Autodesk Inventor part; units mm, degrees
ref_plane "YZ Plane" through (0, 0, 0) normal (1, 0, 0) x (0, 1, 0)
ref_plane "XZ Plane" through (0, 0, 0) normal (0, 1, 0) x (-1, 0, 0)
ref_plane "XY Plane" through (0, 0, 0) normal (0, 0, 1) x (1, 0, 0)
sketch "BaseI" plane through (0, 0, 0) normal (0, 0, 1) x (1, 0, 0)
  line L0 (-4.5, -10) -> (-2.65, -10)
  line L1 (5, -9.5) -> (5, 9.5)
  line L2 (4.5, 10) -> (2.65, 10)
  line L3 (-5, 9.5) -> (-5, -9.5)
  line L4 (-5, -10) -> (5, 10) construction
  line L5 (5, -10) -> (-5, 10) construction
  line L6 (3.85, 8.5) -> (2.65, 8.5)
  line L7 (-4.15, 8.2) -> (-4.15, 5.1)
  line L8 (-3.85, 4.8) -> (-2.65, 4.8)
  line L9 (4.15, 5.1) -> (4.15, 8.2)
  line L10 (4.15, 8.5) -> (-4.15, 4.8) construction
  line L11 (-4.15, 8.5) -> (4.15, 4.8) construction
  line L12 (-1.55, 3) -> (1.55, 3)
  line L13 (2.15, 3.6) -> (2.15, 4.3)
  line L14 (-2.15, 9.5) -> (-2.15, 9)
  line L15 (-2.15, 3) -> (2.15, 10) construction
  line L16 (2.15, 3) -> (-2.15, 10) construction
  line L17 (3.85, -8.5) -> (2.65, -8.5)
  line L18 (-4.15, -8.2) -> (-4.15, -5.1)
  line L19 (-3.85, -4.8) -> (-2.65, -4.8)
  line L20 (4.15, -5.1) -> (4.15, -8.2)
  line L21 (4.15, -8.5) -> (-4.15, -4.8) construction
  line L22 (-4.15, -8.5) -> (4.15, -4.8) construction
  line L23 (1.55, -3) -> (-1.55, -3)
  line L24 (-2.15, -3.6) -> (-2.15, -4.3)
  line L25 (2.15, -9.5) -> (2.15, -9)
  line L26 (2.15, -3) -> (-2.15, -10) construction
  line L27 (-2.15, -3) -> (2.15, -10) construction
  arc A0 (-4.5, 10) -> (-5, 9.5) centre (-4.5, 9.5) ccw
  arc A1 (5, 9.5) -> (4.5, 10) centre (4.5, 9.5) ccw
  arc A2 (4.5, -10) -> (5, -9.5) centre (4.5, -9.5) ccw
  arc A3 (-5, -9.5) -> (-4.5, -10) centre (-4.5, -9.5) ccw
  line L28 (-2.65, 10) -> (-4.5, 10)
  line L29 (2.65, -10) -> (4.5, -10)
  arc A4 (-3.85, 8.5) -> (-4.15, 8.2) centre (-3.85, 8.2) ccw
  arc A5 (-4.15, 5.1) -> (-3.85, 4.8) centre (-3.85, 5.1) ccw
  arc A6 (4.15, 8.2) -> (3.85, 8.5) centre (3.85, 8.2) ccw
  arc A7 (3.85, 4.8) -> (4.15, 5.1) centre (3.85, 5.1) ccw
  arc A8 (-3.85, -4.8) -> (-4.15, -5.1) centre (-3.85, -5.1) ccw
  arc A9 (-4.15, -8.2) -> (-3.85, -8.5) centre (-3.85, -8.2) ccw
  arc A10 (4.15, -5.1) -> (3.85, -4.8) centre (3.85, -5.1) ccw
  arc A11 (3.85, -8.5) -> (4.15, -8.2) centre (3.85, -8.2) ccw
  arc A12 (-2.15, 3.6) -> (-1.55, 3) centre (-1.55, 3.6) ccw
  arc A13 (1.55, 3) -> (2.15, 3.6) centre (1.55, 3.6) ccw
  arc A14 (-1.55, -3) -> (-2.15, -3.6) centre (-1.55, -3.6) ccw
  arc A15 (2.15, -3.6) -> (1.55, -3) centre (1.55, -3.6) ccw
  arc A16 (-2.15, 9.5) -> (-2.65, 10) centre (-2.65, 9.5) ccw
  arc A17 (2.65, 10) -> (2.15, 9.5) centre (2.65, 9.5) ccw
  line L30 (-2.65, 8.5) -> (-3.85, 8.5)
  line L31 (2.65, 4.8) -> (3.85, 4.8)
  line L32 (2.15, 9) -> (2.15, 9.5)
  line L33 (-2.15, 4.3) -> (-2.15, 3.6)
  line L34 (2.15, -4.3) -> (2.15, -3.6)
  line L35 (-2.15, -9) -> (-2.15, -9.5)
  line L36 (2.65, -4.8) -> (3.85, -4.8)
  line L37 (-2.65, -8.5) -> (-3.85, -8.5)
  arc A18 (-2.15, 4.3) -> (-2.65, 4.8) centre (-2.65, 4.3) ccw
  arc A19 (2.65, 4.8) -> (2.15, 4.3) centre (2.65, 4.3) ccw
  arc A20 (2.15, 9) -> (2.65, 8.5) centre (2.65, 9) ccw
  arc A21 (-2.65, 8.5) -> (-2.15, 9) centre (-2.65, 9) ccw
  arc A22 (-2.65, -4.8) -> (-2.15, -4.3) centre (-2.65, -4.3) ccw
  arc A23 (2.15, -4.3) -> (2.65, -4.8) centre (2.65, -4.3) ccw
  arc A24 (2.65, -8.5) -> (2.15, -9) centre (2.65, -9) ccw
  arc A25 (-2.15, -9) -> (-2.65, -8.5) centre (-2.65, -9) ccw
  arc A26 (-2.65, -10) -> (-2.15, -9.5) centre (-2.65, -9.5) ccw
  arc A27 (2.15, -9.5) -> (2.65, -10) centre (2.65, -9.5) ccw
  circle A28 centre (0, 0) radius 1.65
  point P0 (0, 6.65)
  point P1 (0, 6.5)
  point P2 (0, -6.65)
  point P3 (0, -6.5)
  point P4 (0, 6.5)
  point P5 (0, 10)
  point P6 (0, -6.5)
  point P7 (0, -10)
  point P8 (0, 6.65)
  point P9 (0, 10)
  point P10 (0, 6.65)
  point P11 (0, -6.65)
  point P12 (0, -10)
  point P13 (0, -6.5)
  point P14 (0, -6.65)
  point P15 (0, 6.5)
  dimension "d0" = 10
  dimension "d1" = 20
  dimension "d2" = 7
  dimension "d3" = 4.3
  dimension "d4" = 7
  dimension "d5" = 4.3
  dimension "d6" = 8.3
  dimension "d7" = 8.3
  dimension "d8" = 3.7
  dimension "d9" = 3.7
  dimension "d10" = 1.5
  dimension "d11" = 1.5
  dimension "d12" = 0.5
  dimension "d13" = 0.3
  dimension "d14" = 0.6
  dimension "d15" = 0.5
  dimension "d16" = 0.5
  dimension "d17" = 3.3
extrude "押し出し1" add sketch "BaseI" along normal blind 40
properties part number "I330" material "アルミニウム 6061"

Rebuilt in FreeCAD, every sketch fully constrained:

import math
import FreeCAD as App
import Part
import Sketcher
from FreeCAD import Vector

doc = App.newDocument("Part")
params = doc.addObject("Spreadsheet::Sheet", "Params")
for row, (alias, value) in enumerate([
    ("sketch1_diameter", "3.3 mm"),
    ("sketch1_radius", "0.5 mm"),
    ("sketch1_radius2", "0.3 mm"),
    ("sketch1_radius3", "0.6 mm"),
    ("sketch1_height", "0.5 mm"),
    ("pad1_length", "40 mm"),
], start=1):
    params.set(f"A{row}", alias)
    params.set(f"B{row}", "=" + value)
    params.setAlias(f"B{row}", alias)

body = doc.addObject("PartDesign::Body", "Body")

sketch1 = body.newObject("Sketcher::SketchObject", "Sketch")
sketch1.AttachmentSupport = (doc.getObject("XY_Plane"), [""])
sketch1.MapMode = "FlatFace"
sketch1.addGeometry([
    Part.ArcOfCircle(Part.Circle(Vector(-4.5, -9.5, 0), Vector(0, 0, 1), 0.5), math.radians(180), math.radians(270)),
    Part.LineSegment(Vector(-4.5, -10, 0), Vector(-2.65, -10, 0)),
    Part.ArcOfCircle(Part.Circle(Vector(-2.65, -9.5, 0), Vector(0, 0, 1), 0.5), math.radians(-90), math.radians(0)),
    Part.LineSegment(Vector(-2.15, -9.5, 0), Vector(-2.15, -9, 0)),
    Part.ArcOfCircle(Part.Circle(Vector(-2.65, -9, 0), Vector(0, 0, 1), 0.5), math.radians(0), math.radians(90)),
    Part.LineSegment(Vector(-2.65, -8.5, 0), Vector(-3.85, -8.5, 0)),
    Part.ArcOfCircle(Part.Circle(Vector(-3.85, -8.2, 0), Vector(0, 0, 1), 0.3), math.radians(180), math.radians(270)),
    Part.LineSegment(Vector(-4.15, -8.2, 0), Vector(-4.15, -5.1, 0)),
    Part.ArcOfCircle(Part.Circle(Vector(-3.85, -5.1, 0), Vector(0, 0, 1), 0.3), math.radians(90), math.radians(180)),
    Part.LineSegment(Vector(-3.85, -4.8, 0), Vector(-2.65, -4.8, 0)),
    Part.ArcOfCircle(Part.Circle(Vector(-2.65, -4.3, 0), Vector(0, 0, 1), 0.5), math.radians(-90), math.radians(0)),
    Part.LineSegment(Vector(-2.15, -4.3, 0), Vector(-2.15, -3.6, 0)),
    Part.ArcOfCircle(Part.Circle(Vector(-1.55, -3.6, 0), Vector(0, 0, 1), 0.6), math.radians(90), math.radians(180)),
    Part.LineSegment(Vector(-1.55, -3, 0), Vector(1.55, -3, 0)),
    Part.ArcOfCircle(Part.Circle(Vector(1.55, -3.6, 0), Vector(0, 0, 1), 0.6), math.radians(0), math.radians(90)),
    Part.LineSegment(Vector(2.15, -3.6, 0), Vector(2.15, -4.3, 0)),
    Part.ArcOfCircle(Part.Circle(Vector(2.65, -4.3, 0), Vector(0, 0, 1), 0.5), math.radians(180), math.radians(270)),
    Part.LineSegment(Vector(2.65, -4.8, 0), Vector(3.85, -4.8, 0)),
    Part.ArcOfCircle(Part.Circle(Vector(3.85, -5.1, 0), Vector(0, 0, 1), 0.3), math.radians(0), math.radians(90)),
    Part.LineSegment(Vector(4.15, -5.1, 0), Vector(4.15, -8.2, 0)),
    Part.ArcOfCircle(Part.Circle(Vector(3.85, -8.2, 0), Vector(0, 0, 1), 0.3), math.radians(-90), math.radians(0)),
    Part.LineSegment(Vector(3.85, -8.5, 0), Vector(2.65, -8.5, 0)),
    Part.ArcOfCircle(Part.Circle(Vector(2.65, -9, 0), Vector(0, 0, 1), 0.5), math.radians(90), math.radians(180)),
    Part.LineSegment(Vector(2.15, -9, 0), Vector(2.15, -9.5, 0)),
    Part.ArcOfCircle(Part.Circle(Vector(2.65, -9.5, 0), Vector(0, 0, 1), 0.5), math.radians(180), math.radians(270)),
    Part.LineSegment(Vector(2.65, -10, 0), Vector(4.5, -10, 0)),
    Part.ArcOfCircle(Part.Circle(Vector(4.5, -9.5, 0), Vector(0, 0, 1), 0.5), math.radians(-90), math.radians(0)),
    Part.LineSegment(Vector(5, -9.5, 0), Vector(5, 9.5, 0)),
    Part.ArcOfCircle(Part.Circle(Vector(4.5, 9.5, 0), Vector(0, 0, 1), 0.5), math.radians(0), math.radians(90)),
    Part.LineSegment(Vector(4.5, 10, 0), Vector(2.65, 10, 0)),
    Part.ArcOfCircle(Part.Circle(Vector(2.65, 9.5, 0), Vector(0, 0, 1), 0.5), math.radians(90), math.radians(180)),
    Part.LineSegment(Vector(2.15, 9.5, 0), Vector(2.15, 9, 0)),
    Part.ArcOfCircle(Part.Circle(Vector(2.65, 9, 0), Vector(0, 0, 1), 0.5), math.radians(180), math.radians(270)),
    Part.LineSegment(Vector(2.65, 8.5, 0), Vector(3.85, 8.5, 0)),
    Part.ArcOfCircle(Part.Circle(Vector(3.85, 8.2, 0), Vector(0, 0, 1), 0.3), math.radians(0), math.radians(90)),
    Part.LineSegment(Vector(4.15, 8.2, 0), Vector(4.15, 5.1, 0)),
    Part.ArcOfCircle(Part.Circle(Vector(3.85, 5.1, 0), Vector(0, 0, 1), 0.3), math.radians(-90), math.radians(0)),
    Part.LineSegment(Vector(3.85, 4.8, 0), Vector(2.65, 4.8, 0)),
    Part.ArcOfCircle(Part.Circle(Vector(2.65, 4.3, 0), Vector(0, 0, 1), 0.5), math.radians(90), math.radians(180)),
    Part.LineSegment(Vector(2.15, 4.3, 0), Vector(2.15, 3.6, 0)),
    Part.ArcOfCircle(Part.Circle(Vector(1.55, 3.6, 0), Vector(0, 0, 1), 0.6), math.radians(-90), math.radians(0)),
    Part.LineSegment(Vector(1.55, 3, 0), Vector(-1.55, 3, 0)),
    Part.ArcOfCircle(Part.Circle(Vector(-1.55, 3.6, 0), Vector(0, 0, 1), 0.6), math.radians(180), math.radians(270)),
    Part.LineSegment(Vector(-2.15, 3.6, 0), Vector(-2.15, 4.3, 0)),
    Part.ArcOfCircle(Part.Circle(Vector(-2.65, 4.3, 0), Vector(0, 0, 1), 0.5), math.radians(0), math.radians(90)),
    Part.LineSegment(Vector(-2.65, 4.8, 0), Vector(-3.85, 4.8, 0)),
    Part.ArcOfCircle(Part.Circle(Vector(-3.85, 5.1, 0), Vector(0, 0, 1), 0.3), math.radians(180), math.radians(270)),
    Part.LineSegment(Vector(-4.15, 5.1, 0), Vector(-4.15, 8.2, 0)),
    Part.ArcOfCircle(Part.Circle(Vector(-3.85, 8.2, 0), Vector(0, 0, 1), 0.3), math.radians(90), math.radians(180)),
    Part.LineSegment(Vector(-3.85, 8.5, 0), Vector(-2.65, 8.5, 0)),
    Part.ArcOfCircle(Part.Circle(Vector(-2.65, 9, 0), Vector(0, 0, 1), 0.5), math.radians(-90), math.radians(0)),
    Part.LineSegment(Vector(-2.15, 9, 0), Vector(-2.15, 9.5, 0)),
    Part.ArcOfCircle(Part.Circle(Vector(-2.65, 9.5, 0), Vector(0, 0, 1), 0.5), math.radians(0), math.radians(90)),
    Part.LineSegment(Vector(-2.65, 10, 0), Vector(-4.5, 10, 0)),
    Part.ArcOfCircle(Part.Circle(Vector(-4.5, 9.5, 0), Vector(0, 0, 1), 0.5), math.radians(90), math.radians(180)),
    Part.LineSegment(Vector(-5, 9.5, 0), Vector(-5, -9.5, 0)),
    Part.Circle(Vector(0, 0, 0), Vector(0, 0, 1), 1.65),
], False)
sketch1.addConstraint([
    Sketcher.Constraint("Tangent", 0, 2, 1, 1),
    Sketcher.Constraint("Tangent", 1, 2, 2, 1),
    Sketcher.Constraint("Tangent", 2, 2, 3, 1),
    Sketcher.Constraint("Tangent", 3, 2, 4, 1),
    Sketcher.Constraint("Tangent", 4, 2, 5, 1),
    Sketcher.Constraint("Tangent", 5, 2, 6, 2),
    Sketcher.Constraint("Tangent", 6, 1, 7, 1),
    Sketcher.Constraint("Tangent", 7, 2, 8, 2),
    Sketcher.Constraint("Tangent", 8, 1, 9, 1),
    Sketcher.Constraint("Tangent", 9, 2, 10, 1),
    Sketcher.Constraint("Tangent", 10, 2, 11, 1),
    Sketcher.Constraint("Tangent", 11, 2, 12, 2),
    Sketcher.Constraint("Tangent", 12, 1, 13, 1),
    Sketcher.Constraint("Tangent", 13, 2, 14, 2),
    Sketcher.Constraint("Tangent", 14, 1, 15, 1),
    Sketcher.Constraint("Tangent", 15, 2, 16, 1),
    Sketcher.Constraint("Tangent", 16, 2, 17, 1),
    Sketcher.Constraint("Tangent", 17, 2, 18, 2),
    Sketcher.Constraint("Tangent", 18, 1, 19, 1),
    Sketcher.Constraint("Tangent", 19, 2, 20, 2),
    Sketcher.Constraint("Tangent", 20, 1, 21, 1),
    Sketcher.Constraint("Tangent", 21, 2, 22, 1),
    Sketcher.Constraint("Tangent", 22, 2, 23, 1),
    Sketcher.Constraint("Tangent", 23, 2, 24, 1),
    Sketcher.Constraint("Tangent", 24, 2, 25, 1),
    Sketcher.Constraint("Tangent", 25, 2, 26, 1),
    Sketcher.Constraint("Tangent", 26, 2, 27, 1),
    Sketcher.Constraint("Tangent", 27, 2, 28, 1),
    Sketcher.Constraint("Tangent", 28, 2, 29, 1),
    Sketcher.Constraint("Tangent", 29, 2, 30, 1),
    Sketcher.Constraint("Tangent", 30, 2, 31, 1),
    Sketcher.Constraint("Tangent", 31, 2, 32, 1),
    Sketcher.Constraint("Tangent", 32, 2, 33, 1),
    Sketcher.Constraint("Tangent", 33, 2, 34, 2),
    Sketcher.Constraint("Tangent", 34, 1, 35, 1),
    Sketcher.Constraint("Tangent", 35, 2, 36, 2),
    Sketcher.Constraint("Tangent", 36, 1, 37, 1),
    Sketcher.Constraint("Tangent", 37, 2, 38, 1),
    Sketcher.Constraint("Tangent", 38, 2, 39, 1),
    Sketcher.Constraint("Tangent", 39, 2, 40, 2),
    Sketcher.Constraint("Tangent", 40, 1, 41, 1),
    Sketcher.Constraint("Tangent", 41, 2, 42, 2),
    Sketcher.Constraint("Tangent", 42, 1, 43, 1),
    Sketcher.Constraint("Tangent", 43, 2, 44, 1),
    Sketcher.Constraint("Tangent", 44, 2, 45, 1),
    Sketcher.Constraint("Tangent", 45, 2, 46, 2),
    Sketcher.Constraint("Tangent", 46, 1, 47, 1),
    Sketcher.Constraint("Tangent", 47, 2, 48, 2),
    Sketcher.Constraint("Tangent", 48, 1, 49, 1),
    Sketcher.Constraint("Tangent", 49, 2, 50, 1),
    Sketcher.Constraint("Tangent", 50, 2, 51, 1),
    Sketcher.Constraint("Tangent", 51, 2, 52, 1),
    Sketcher.Constraint("Tangent", 52, 2, 53, 1),
    Sketcher.Constraint("Tangent", 53, 2, 54, 1),
    Sketcher.Constraint("Tangent", 54, 2, 55, 1),
    Sketcher.Constraint("Tangent", 55, 2, 0, 1),
    Sketcher.Constraint("Horizontal", 1),
    Sketcher.Constraint("Vertical", 3),
    Sketcher.Constraint("Horizontal", 5),
    Sketcher.Constraint("Vertical", 7),
    Sketcher.Constraint("Horizontal", 9),
    Sketcher.Constraint("Vertical", 11),
    Sketcher.Constraint("Horizontal", 13),
    Sketcher.Constraint("Vertical", 15),
    Sketcher.Constraint("Horizontal", 17),
    Sketcher.Constraint("Vertical", 19),
    Sketcher.Constraint("Horizontal", 21),
    Sketcher.Constraint("Vertical", 23),
    Sketcher.Constraint("Horizontal", 25),
    Sketcher.Constraint("Vertical", 27),
    Sketcher.Constraint("Horizontal", 29),
    Sketcher.Constraint("Vertical", 31),
    Sketcher.Constraint("Horizontal", 33),
    Sketcher.Constraint("Vertical", 35),
    Sketcher.Constraint("Horizontal", 37),
    Sketcher.Constraint("Vertical", 39),
    Sketcher.Constraint("Horizontal", 41),
    Sketcher.Constraint("Vertical", 43),
    Sketcher.Constraint("Horizontal", 45),
    Sketcher.Constraint("Vertical", 47),
    Sketcher.Constraint("Horizontal", 49),
    Sketcher.Constraint("Vertical", 51),
    Sketcher.Constraint("Horizontal", 53),
    Sketcher.Constraint("Vertical", 55),
    Sketcher.Constraint("Coincident", 56, 3, -1, 1),
    Sketcher.Constraint("Equal", 0, 2),
    Sketcher.Constraint("Equal", 2, 4),
    Sketcher.Constraint("Equal", 6, 8),
    Sketcher.Constraint("Equal", 4, 10),
    Sketcher.Constraint("Equal", 12, 14),
    Sketcher.Constraint("Equal", 10, 16),
    Sketcher.Constraint("Equal", 8, 18),
    Sketcher.Constraint("Equal", 18, 20),
    Sketcher.Constraint("Equal", 16, 22),
    Sketcher.Constraint("Equal", 22, 24),
    Sketcher.Constraint("Equal", 24, 26),
    Sketcher.Constraint("Equal", 26, 28),
    Sketcher.Constraint("Equal", 28, 30),
    Sketcher.Constraint("Equal", 30, 32),
    Sketcher.Constraint("Equal", 20, 34),
    Sketcher.Constraint("Equal", 34, 36),
    Sketcher.Constraint("Equal", 32, 38),
    Sketcher.Constraint("Equal", 14, 40),
    Sketcher.Constraint("Equal", 40, 42),
    Sketcher.Constraint("Equal", 38, 44),
    Sketcher.Constraint("Equal", 36, 46),
    Sketcher.Constraint("Equal", 46, 48),
    Sketcher.Constraint("Equal", 44, 50),
    Sketcher.Constraint("Equal", 50, 52),
    Sketcher.Constraint("Equal", 52, 54),
    Sketcher.Constraint("Symmetric", 0, 3, 28, 3, -1, 1),
    Sketcher.Constraint("Symmetric", 4, 3, 32, 3, -1, 1),
    Sketcher.Constraint("Symmetric", 8, 3, 36, 3, -1, 1),
    Sketcher.Constraint("Symmetric", 12, 3, 40, 3, -1, 1),
    Sketcher.Constraint("Symmetric", 16, 3, 44, 3, -1, 1),
    Sketcher.Constraint("Symmetric", 20, 3, 48, 3, -1, 1),
    Sketcher.Constraint("Symmetric", 24, 3, 52, 3, -1, 1),
    Sketcher.Constraint("Symmetric", 10, 3, 16, 3, -2),
    Sketcher.Constraint("Symmetric", 6, 3, 20, 3, -2),
    Sketcher.Constraint("Symmetric", 2, 3, 24, 3, -2),
    Sketcher.Constraint("Vertical", 4, 3, 10, 3),
    Sketcher.Constraint("Equal", 41, 7),
    Sketcher.Constraint("Diameter", 56, 3.3),
    Sketcher.Constraint("Radius", 0, 0.5),
    Sketcher.Constraint("Radius", 6, 0.3),
    Sketcher.Constraint("Radius", 12, 0.6),
    Sketcher.Constraint("DistanceY", 3, 1, 3, 2, 0.5),
    Sketcher.Constraint("DistanceY", 0, 2, -1, 1, 10.0),
    Sketcher.Constraint("DistanceY", 10, 3, -1, 1, 4.3),
    Sketcher.Constraint("DistanceX", 5, 2, 5, 1, 1.2),
    Sketcher.Constraint("DistanceY", 11, 1, 11, 2, 0.7),
    Sketcher.Constraint("DistanceX", -1, 1, 26, 2, 5.0),
])
sketch1.setExpression("Constraints[122]", "Params.sketch1_diameter")
sketch1.setExpression("Constraints[123]", "Params.sketch1_radius")
sketch1.setExpression("Constraints[124]", "Params.sketch1_radius2")
sketch1.setExpression("Constraints[125]", "Params.sketch1_radius3")
sketch1.setExpression("Constraints[126]", "Params.sketch1_height")
pad1 = body.newObject("PartDesign::Pad", "Pad")
pad1.Profile = sketch1
pad1.setExpression("Length", "Params.pad1_length")

doc.recompute()
